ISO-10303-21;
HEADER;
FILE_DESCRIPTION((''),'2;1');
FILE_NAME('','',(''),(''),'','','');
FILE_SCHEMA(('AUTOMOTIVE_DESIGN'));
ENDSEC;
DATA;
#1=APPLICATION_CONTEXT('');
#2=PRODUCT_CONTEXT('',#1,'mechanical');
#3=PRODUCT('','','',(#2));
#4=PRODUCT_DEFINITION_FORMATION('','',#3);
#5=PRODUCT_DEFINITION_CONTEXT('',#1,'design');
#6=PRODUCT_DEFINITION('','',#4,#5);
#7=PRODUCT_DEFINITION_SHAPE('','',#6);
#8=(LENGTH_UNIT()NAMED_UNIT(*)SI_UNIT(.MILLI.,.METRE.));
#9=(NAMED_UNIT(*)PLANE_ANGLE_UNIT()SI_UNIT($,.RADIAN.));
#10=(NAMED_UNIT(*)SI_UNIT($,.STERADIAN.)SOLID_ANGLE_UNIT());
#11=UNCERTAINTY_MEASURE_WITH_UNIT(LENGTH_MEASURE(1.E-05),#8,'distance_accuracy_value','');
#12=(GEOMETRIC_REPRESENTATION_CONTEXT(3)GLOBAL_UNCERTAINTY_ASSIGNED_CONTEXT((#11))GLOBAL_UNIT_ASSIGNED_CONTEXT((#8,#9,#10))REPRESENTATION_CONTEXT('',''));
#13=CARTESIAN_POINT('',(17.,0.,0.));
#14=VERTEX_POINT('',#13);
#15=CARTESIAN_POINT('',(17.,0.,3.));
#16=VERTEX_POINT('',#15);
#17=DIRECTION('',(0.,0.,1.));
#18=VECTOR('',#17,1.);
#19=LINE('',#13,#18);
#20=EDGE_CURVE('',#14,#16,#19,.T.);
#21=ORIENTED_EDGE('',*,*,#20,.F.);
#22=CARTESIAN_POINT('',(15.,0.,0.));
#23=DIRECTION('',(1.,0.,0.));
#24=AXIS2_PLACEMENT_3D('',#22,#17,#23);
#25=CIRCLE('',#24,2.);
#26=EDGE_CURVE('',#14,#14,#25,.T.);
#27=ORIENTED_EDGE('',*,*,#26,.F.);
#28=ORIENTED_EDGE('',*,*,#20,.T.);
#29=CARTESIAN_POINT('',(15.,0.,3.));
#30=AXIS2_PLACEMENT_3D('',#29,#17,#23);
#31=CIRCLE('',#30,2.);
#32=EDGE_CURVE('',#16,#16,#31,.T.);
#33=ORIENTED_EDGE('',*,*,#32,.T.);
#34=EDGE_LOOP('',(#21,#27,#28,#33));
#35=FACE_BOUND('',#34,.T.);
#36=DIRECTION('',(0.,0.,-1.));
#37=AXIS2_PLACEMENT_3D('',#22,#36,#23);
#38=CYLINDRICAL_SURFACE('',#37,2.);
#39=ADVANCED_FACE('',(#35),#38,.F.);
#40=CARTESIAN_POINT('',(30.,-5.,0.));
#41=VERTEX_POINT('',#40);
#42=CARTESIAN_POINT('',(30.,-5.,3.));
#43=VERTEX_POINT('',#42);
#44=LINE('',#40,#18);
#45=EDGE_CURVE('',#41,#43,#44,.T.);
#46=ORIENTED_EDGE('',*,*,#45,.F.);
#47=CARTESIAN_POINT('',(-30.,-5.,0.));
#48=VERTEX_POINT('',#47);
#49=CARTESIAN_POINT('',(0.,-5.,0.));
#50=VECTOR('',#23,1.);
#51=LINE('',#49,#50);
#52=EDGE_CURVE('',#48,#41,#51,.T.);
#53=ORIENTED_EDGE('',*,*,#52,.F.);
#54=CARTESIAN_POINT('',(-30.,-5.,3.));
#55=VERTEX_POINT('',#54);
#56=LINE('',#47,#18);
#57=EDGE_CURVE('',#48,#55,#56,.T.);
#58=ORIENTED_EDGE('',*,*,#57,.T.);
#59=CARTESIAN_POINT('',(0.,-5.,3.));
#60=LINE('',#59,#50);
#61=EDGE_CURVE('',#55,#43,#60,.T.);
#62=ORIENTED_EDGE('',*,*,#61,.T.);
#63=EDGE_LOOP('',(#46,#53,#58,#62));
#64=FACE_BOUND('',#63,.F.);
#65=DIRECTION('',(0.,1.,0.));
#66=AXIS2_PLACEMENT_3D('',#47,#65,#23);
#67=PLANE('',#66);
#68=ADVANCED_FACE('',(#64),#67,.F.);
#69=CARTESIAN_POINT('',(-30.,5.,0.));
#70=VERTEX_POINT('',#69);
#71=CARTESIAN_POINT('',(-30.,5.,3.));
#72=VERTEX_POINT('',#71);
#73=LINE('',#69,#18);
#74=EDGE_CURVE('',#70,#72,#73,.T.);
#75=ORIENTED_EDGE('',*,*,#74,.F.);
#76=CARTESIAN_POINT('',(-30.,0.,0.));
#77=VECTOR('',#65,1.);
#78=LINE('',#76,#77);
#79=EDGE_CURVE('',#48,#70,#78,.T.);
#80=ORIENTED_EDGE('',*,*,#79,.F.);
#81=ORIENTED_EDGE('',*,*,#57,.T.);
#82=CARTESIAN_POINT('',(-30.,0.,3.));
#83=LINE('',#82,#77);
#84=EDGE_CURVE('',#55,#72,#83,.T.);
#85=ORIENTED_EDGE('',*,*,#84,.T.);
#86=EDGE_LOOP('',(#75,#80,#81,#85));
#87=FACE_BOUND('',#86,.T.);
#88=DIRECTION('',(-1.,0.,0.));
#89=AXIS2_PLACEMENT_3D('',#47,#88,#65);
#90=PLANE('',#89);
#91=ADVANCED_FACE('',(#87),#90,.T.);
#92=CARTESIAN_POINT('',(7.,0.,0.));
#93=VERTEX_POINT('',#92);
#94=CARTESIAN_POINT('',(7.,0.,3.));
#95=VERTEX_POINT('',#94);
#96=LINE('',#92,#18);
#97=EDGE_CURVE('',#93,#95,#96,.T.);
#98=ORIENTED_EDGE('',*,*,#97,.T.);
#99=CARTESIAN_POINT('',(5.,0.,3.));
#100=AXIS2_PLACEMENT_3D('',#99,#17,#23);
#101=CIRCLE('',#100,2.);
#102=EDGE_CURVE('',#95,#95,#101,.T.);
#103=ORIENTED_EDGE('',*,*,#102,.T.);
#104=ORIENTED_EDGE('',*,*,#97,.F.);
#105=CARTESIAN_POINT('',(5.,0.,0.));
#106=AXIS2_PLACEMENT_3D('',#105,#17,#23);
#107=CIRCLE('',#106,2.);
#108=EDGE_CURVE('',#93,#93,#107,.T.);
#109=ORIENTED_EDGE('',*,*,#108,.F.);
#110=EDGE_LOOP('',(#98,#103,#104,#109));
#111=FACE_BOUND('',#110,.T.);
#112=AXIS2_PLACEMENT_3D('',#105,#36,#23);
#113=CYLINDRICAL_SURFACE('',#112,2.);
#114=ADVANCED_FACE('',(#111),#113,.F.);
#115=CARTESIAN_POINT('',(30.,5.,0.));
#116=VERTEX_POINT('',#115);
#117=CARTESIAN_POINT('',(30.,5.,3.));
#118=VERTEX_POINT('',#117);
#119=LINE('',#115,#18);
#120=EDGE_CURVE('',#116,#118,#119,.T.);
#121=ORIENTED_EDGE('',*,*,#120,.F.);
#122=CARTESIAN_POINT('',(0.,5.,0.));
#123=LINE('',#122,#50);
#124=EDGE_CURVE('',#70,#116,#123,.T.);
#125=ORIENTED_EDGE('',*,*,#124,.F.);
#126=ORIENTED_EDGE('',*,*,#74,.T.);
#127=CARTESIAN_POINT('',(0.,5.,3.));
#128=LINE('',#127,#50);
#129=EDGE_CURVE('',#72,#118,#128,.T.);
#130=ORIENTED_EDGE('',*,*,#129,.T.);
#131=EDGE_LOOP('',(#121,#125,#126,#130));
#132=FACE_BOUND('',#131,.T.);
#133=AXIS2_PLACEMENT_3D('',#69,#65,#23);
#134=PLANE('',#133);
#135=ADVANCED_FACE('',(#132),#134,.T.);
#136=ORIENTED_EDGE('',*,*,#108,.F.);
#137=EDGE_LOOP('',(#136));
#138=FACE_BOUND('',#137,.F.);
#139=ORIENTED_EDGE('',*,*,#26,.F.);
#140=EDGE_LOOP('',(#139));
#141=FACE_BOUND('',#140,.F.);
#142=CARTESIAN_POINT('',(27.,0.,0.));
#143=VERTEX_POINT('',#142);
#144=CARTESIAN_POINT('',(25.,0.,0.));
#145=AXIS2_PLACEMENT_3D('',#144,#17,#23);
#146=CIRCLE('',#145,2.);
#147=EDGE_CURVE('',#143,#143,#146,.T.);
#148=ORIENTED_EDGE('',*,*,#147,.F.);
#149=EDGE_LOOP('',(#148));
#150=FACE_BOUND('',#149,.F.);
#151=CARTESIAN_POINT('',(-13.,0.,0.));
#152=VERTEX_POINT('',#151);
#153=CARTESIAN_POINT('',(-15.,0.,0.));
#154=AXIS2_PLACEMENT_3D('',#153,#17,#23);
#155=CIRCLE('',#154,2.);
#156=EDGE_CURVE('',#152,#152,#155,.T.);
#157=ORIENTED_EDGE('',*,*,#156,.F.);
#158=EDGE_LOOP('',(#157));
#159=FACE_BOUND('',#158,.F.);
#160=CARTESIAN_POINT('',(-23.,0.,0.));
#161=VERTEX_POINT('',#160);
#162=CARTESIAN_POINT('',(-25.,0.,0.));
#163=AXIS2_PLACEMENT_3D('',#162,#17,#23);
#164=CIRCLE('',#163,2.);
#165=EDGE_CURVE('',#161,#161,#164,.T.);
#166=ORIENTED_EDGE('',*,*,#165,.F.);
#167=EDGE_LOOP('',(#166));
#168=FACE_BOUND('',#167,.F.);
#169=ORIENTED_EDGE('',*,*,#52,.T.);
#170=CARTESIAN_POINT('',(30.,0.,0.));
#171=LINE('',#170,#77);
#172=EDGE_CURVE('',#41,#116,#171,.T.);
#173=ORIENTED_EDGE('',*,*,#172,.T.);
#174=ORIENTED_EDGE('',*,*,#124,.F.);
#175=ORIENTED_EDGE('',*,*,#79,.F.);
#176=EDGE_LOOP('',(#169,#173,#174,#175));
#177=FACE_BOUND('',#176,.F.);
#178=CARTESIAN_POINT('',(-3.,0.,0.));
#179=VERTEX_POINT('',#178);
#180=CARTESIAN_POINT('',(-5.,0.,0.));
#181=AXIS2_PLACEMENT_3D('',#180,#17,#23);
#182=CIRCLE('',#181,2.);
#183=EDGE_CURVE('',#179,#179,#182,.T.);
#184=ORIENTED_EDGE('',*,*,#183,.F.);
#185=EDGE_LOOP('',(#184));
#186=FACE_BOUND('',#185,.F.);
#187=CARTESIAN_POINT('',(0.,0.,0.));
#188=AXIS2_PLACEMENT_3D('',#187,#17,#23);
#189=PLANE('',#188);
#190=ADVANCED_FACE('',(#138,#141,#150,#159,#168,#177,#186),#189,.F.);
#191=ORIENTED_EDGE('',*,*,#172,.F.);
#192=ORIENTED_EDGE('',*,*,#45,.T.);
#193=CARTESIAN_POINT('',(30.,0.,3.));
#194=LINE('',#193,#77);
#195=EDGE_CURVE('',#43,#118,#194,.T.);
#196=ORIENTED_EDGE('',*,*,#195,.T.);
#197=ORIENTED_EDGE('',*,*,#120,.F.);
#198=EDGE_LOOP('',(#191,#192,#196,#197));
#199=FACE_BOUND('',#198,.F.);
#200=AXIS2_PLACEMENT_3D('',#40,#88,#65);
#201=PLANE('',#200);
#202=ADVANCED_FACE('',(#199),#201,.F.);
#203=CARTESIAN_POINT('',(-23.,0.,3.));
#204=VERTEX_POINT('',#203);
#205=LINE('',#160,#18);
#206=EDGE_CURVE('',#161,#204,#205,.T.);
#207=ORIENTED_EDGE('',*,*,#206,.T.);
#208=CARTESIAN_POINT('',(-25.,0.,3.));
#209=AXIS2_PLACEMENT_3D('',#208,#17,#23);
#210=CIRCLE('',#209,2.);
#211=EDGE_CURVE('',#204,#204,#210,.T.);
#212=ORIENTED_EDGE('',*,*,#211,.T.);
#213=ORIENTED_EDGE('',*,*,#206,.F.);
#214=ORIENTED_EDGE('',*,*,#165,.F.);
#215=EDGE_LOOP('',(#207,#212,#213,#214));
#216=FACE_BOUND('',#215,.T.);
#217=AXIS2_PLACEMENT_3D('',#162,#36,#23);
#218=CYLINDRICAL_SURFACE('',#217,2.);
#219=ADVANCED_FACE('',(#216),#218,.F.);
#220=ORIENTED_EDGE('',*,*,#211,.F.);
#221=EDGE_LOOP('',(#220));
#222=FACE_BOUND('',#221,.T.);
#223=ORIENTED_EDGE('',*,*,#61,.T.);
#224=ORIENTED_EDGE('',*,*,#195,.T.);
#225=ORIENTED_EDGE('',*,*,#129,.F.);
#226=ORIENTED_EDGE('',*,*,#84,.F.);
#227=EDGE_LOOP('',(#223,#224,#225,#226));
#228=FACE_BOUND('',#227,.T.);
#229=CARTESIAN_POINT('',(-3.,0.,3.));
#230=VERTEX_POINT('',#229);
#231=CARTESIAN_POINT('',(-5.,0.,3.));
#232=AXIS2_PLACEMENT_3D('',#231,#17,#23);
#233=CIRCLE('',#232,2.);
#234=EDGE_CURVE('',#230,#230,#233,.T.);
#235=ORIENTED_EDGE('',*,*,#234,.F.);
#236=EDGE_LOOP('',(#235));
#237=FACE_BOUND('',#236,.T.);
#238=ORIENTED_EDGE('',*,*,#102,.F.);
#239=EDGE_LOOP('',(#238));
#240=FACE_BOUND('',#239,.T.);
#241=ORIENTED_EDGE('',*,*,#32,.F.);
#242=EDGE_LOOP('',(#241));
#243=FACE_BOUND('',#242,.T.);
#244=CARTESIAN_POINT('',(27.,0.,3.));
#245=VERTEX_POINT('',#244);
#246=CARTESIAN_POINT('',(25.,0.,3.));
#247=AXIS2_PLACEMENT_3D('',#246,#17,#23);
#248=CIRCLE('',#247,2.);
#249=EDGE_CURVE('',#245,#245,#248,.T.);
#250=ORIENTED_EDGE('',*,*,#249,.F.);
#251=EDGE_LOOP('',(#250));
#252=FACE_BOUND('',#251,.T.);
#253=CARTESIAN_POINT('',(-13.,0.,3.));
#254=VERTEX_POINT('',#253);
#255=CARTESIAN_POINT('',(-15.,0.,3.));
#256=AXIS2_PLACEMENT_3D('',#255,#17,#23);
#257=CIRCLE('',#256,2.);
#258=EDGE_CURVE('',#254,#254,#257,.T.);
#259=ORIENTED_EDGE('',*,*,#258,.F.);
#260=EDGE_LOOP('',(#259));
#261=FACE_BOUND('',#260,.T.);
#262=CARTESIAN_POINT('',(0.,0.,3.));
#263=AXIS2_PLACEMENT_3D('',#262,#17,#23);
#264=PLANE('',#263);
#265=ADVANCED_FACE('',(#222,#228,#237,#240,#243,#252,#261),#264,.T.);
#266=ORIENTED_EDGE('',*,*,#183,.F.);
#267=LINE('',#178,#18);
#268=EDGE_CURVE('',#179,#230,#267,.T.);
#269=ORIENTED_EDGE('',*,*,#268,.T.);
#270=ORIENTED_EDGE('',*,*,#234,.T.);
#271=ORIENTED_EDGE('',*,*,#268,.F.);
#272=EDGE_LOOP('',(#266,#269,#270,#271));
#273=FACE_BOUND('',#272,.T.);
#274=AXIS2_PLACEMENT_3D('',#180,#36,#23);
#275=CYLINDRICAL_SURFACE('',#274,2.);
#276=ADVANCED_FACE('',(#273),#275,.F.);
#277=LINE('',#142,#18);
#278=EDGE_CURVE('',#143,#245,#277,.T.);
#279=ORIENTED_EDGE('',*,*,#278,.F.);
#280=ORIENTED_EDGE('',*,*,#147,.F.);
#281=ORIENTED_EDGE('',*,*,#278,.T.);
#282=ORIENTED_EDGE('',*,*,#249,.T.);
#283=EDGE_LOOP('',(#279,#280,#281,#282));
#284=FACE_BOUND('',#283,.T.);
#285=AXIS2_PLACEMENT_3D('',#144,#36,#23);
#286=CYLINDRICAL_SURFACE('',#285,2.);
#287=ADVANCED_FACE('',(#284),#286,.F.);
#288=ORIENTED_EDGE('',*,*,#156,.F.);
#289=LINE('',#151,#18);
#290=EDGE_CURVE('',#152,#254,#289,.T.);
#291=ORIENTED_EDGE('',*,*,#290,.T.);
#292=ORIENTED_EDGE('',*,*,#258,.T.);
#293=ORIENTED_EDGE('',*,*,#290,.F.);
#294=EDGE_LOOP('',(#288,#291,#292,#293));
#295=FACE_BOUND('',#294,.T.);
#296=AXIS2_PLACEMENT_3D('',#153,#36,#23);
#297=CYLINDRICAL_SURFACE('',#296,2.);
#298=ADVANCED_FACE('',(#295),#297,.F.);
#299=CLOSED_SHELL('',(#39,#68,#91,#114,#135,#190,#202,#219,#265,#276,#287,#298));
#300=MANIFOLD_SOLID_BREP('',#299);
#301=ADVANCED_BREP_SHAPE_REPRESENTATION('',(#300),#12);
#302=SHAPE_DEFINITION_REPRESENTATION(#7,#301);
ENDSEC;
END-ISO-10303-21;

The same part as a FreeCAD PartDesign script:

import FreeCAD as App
import Part
import Sketcher
Q = App.Units.Quantity


def add_polygon(sketch, points):
    """Adds a closed chain of lines whose ends are joined by coincident constraints."""
    first, n = sketch.GeometryCount, len(points)
    for a, b in zip(points, points[1:] + points[:1]):
        sketch.addGeometry(Part.LineSegment(App.Vector(*a, 0), App.Vector(*b, 0)), False)
    for i in range(n):
        sketch.addConstraint(Sketcher.Constraint("Coincident", first + i, 2, first + (i + 1) % n, 1))

doc = App.newDocument("Part")
body = doc.addObject("PartDesign::Body", "Body")

# Sketch on XY plane
sketch1 = body.newObject("Sketcher::SketchObject", "Sketch")
sketch1.AttachmentSupport = (doc.getObject("XY_Plane"), [""])
sketch1.MapMode = "FlatFace"
add_polygon(sketch1, [(-30, 5), (-30, -5), (30, -5), (30, 5)])  # lines 0-3
sketch1.addGeometry(Part.Circle(App.Vector(-25, 0, 0), App.Vector(0, 0, 1), 2), False)  # 4
sketch1.addGeometry(Part.Circle(App.Vector(-15, 0, 0), App.Vector(0, 0, 1), 2), False)  # 5
sketch1.addGeometry(Part.Circle(App.Vector(-5, 0, 0), App.Vector(0, 0, 1), 2), False)  # 6
sketch1.addGeometry(Part.Circle(App.Vector(5, 0, 0), App.Vector(0, 0, 1), 2), False)  # 7
sketch1.addGeometry(Part.Circle(App.Vector(15, 0, 0), App.Vector(0, 0, 1), 2), False)  # 8
sketch1.addGeometry(Part.Circle(App.Vector(25, 0, 0), App.Vector(0, 0, 1), 2), False)  # 9
sketch1.addConstraint([
    Sketcher.Constraint("Vertical", 0),
    Sketcher.Constraint("Horizontal", 1),
    Sketcher.Constraint("Vertical", 2),
    Sketcher.Constraint("Horizontal", 3),
    Sketcher.Constraint("Equal", 4, 5),
    Sketcher.Constraint("Equal", 5, 6),
    Sketcher.Constraint("Equal", 6, 7),
    Sketcher.Constraint("Equal", 7, 8),
    Sketcher.Constraint("Equal", 8, 9),
    Sketcher.Constraint("Symmetric", 6, 3, 7, 3, -1, 1),
    Sketcher.Constraint("Symmetric", 5, 3, 8, 3, -1, 1),
    Sketcher.Constraint("Symmetric", 4, 3, 9, 3, -1, 1),
    Sketcher.Constraint("Symmetric", 0, 2, 2, 2, -1, 1),
    Sketcher.Constraint("PointOnObject", 4, 3, -1),
    Sketcher.Constraint("PointOnObject", 5, 3, -1),
    Sketcher.Constraint("PointOnObject", 6, 3, -1),
    Sketcher.Constraint("Diameter", 4, Q("4 mm")),
    Sketcher.Constraint("DistanceX", 1, 1, 1, 2, Q("60 mm")),
    Sketcher.Constraint("DistanceY", 0, 2, 0, 1, Q("10 mm")),
    Sketcher.Constraint("DistanceX", 4, 3, -1, 1, Q("25 mm")),
    Sketcher.Constraint("DistanceX", 5, 3, -1, 1, Q("15 mm")),
    Sketcher.Constraint("DistanceX", 6, 3, -1, 1, Q("5 mm")),
])
pad1 = body.newObject("PartDesign::Pad", "Pad")
pad1.Profile = sketch1
pad1.Length = 3

doc.recompute()
